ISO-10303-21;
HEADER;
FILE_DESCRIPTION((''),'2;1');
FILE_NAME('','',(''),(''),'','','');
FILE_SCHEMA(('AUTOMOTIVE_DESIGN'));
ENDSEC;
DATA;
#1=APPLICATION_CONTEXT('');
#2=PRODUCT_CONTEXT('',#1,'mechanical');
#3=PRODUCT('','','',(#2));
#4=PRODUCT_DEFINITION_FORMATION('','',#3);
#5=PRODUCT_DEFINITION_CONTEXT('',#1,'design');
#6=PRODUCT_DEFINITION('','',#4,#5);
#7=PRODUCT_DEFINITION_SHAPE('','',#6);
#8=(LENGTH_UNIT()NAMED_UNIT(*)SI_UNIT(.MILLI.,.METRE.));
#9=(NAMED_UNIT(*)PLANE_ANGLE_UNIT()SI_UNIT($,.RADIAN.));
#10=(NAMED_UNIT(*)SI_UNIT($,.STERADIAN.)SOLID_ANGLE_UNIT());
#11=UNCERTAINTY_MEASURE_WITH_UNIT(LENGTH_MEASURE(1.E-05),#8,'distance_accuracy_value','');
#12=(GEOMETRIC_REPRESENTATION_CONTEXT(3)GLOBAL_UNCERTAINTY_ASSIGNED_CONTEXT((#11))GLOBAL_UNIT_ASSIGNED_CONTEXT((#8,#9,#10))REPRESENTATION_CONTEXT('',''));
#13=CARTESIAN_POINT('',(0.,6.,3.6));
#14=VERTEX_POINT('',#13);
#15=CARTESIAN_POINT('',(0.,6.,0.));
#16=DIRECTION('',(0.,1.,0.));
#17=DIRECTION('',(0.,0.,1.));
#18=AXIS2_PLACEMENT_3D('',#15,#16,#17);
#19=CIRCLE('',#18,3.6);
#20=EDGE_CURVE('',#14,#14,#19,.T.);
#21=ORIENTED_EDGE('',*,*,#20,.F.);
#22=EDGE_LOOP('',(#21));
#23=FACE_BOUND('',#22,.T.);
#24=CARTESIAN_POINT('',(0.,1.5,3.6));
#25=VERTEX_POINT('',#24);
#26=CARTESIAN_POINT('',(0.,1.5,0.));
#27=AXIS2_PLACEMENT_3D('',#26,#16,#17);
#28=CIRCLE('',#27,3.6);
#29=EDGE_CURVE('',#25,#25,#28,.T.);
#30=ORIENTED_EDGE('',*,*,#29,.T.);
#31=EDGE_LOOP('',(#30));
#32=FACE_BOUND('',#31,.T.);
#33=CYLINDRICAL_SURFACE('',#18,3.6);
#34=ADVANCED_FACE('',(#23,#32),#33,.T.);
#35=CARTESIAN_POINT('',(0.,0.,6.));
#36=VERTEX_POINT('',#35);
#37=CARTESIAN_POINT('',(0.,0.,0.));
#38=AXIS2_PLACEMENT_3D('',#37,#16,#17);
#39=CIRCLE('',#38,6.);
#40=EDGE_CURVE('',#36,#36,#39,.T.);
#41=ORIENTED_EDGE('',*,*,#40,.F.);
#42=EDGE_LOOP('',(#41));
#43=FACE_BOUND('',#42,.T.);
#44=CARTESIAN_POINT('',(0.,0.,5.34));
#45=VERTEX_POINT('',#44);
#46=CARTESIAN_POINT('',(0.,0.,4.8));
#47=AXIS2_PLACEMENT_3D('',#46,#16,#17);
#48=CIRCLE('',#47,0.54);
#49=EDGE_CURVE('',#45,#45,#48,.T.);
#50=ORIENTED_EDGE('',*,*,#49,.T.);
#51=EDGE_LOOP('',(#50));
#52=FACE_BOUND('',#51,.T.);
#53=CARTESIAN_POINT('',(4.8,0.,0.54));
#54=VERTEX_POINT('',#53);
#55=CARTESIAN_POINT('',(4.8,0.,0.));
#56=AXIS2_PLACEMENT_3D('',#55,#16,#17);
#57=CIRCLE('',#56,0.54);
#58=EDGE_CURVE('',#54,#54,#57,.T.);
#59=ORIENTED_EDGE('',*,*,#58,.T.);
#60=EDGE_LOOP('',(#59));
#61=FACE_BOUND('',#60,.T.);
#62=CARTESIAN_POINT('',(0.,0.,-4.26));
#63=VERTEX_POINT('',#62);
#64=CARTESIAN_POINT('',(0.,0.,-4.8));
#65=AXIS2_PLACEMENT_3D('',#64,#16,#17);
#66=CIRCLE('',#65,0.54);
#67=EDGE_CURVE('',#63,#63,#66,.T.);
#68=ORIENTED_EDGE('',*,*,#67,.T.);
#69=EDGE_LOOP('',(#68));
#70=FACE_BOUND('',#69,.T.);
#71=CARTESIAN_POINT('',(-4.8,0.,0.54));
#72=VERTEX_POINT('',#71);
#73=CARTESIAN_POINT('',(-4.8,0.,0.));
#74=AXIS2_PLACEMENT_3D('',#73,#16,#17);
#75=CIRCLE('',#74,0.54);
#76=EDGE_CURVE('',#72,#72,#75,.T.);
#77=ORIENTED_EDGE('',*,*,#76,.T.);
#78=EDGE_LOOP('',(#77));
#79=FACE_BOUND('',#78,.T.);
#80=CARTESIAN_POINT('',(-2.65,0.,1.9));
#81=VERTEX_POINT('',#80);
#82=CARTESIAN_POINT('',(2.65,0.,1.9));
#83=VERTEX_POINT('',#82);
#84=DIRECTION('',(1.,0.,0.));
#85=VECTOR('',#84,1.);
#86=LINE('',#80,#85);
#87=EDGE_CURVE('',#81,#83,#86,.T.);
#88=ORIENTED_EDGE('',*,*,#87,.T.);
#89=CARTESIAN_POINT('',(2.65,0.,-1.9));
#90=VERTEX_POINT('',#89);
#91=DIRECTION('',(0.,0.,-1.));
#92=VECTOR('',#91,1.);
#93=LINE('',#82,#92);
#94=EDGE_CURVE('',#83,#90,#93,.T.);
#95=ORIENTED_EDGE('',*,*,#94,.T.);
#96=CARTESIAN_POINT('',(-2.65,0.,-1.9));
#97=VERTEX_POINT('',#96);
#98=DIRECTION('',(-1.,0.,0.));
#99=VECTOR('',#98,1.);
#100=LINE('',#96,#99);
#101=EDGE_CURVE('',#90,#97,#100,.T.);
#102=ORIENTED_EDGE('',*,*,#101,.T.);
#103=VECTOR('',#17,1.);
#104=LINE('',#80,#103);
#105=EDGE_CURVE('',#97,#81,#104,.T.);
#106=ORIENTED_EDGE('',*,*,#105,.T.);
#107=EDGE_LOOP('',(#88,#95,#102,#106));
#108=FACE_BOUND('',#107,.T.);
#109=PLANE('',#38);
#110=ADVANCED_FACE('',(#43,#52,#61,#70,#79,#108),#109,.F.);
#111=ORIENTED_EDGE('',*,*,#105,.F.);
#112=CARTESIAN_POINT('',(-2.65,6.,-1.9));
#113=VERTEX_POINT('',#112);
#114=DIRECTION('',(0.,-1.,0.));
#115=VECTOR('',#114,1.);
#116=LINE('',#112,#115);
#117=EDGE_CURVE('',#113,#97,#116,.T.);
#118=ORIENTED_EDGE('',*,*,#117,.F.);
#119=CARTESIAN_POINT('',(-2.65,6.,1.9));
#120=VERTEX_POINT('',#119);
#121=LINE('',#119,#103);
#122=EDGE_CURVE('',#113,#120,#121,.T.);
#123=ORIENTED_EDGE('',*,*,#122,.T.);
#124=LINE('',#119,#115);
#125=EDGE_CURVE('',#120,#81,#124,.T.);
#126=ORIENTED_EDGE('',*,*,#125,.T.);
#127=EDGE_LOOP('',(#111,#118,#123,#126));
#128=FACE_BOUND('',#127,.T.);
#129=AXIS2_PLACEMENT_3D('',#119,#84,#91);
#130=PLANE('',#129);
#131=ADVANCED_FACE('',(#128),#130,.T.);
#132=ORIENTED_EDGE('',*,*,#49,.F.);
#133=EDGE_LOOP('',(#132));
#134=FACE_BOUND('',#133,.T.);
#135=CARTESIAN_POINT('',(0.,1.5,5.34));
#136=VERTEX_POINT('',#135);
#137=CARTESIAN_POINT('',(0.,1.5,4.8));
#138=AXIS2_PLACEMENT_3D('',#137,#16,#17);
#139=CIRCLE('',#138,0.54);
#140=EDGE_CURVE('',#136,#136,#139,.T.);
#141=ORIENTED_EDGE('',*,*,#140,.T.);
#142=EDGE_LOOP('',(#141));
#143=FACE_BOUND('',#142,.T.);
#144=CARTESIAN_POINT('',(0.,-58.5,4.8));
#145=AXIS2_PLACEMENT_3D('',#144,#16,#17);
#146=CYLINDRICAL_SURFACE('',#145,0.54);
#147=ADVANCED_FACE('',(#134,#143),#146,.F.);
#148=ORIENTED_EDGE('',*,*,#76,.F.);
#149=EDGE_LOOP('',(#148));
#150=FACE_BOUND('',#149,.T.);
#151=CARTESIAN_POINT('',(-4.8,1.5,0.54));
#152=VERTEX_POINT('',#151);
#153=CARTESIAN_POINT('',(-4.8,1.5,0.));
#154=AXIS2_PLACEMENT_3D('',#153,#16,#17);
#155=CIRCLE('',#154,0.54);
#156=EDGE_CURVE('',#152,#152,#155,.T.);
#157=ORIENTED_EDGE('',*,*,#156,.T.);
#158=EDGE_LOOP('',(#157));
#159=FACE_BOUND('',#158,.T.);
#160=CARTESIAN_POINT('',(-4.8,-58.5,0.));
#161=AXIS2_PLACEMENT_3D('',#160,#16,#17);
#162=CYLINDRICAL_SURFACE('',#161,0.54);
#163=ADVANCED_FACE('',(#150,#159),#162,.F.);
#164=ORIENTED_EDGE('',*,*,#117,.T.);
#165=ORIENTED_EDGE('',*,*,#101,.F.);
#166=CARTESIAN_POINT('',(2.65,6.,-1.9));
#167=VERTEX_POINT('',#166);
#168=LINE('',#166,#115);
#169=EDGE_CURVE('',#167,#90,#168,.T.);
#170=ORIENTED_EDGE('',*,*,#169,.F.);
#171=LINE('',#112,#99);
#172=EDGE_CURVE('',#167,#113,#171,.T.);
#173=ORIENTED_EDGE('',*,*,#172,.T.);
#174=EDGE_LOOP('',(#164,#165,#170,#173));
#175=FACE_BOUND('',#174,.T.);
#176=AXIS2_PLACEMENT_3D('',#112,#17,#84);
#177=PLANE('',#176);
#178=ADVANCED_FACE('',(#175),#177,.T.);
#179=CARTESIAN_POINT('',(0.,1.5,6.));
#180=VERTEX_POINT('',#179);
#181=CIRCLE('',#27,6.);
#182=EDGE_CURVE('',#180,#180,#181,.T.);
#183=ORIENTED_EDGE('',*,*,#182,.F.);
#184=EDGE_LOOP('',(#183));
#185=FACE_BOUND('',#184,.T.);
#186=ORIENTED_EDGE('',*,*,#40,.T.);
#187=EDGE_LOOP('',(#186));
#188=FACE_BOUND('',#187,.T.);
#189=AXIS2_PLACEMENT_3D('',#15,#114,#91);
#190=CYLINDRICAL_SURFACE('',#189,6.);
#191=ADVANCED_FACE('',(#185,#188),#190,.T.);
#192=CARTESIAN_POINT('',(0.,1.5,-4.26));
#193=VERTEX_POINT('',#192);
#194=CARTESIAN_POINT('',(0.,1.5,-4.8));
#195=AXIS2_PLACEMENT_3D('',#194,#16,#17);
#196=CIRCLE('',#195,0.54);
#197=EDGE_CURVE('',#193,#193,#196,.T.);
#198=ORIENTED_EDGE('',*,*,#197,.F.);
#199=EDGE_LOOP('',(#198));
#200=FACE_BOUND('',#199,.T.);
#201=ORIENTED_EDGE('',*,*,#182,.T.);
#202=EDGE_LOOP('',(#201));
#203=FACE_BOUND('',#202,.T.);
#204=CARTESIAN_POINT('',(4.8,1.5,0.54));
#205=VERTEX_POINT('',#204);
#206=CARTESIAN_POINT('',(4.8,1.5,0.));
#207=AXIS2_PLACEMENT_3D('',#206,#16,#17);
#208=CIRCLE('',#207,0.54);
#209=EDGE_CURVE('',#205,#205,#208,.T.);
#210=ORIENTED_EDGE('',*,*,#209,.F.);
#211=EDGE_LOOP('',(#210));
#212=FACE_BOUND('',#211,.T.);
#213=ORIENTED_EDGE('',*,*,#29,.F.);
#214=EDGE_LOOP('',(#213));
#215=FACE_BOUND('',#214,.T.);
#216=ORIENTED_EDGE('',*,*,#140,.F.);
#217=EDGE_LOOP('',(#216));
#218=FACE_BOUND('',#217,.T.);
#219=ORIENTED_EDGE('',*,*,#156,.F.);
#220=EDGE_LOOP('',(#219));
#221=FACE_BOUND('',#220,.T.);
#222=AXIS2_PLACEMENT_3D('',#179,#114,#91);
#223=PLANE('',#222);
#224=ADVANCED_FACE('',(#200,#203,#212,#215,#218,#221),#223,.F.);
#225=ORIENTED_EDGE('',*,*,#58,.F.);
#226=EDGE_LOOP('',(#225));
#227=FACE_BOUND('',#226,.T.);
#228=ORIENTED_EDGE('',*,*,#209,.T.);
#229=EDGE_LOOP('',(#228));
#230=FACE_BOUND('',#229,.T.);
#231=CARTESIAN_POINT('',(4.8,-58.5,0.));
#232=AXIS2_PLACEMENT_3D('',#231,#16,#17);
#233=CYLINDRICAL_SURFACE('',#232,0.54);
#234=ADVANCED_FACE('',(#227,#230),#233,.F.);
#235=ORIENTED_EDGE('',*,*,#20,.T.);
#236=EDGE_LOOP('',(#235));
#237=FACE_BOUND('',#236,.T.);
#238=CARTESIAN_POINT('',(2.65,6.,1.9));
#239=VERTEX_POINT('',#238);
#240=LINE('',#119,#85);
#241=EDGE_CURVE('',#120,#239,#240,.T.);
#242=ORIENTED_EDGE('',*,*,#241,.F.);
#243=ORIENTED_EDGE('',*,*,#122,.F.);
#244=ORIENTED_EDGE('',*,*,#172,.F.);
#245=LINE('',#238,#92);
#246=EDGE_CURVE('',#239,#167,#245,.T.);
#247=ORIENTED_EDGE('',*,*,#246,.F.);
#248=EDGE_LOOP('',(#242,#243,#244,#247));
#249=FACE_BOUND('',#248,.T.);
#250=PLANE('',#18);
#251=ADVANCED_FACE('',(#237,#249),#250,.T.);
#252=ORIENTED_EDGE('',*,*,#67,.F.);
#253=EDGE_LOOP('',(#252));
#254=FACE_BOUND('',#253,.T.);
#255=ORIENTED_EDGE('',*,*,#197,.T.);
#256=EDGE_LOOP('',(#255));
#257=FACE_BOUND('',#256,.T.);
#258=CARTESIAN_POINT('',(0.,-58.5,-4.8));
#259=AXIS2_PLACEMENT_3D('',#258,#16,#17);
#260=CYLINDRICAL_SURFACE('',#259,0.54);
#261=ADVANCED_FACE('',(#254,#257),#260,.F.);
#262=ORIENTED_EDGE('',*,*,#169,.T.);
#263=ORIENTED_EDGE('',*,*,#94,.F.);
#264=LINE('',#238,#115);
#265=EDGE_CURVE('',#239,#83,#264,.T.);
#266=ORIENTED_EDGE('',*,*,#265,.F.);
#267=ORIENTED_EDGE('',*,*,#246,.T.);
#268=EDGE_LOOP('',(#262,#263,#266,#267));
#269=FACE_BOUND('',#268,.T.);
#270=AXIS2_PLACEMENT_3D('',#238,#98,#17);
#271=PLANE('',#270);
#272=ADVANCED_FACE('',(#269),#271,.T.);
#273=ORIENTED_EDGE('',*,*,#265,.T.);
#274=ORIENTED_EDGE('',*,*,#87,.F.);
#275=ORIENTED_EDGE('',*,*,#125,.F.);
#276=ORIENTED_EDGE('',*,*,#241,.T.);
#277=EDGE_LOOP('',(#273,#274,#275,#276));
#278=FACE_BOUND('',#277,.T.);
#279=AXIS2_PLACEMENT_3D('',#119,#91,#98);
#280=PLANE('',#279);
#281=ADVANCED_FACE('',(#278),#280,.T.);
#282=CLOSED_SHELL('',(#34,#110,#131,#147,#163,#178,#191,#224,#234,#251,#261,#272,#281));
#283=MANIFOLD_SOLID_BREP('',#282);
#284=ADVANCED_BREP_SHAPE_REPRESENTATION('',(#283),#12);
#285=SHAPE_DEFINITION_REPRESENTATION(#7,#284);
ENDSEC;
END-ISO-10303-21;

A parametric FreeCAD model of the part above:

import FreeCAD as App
import Part
import Sketcher
Q = App.Units.Quantity


def add_polygon(sketch, points):
    """Adds a closed chain of lines whose ends are joined by coincident constraints."""
    first, n = sketch.GeometryCount, len(points)
    for a, b in zip(points, points[1:] + points[:1]):
        sketch.addGeometry(Part.LineSegment(App.Vector(*a, 0), App.Vector(*b, 0)), False)
    for i in range(n):
        sketch.addConstraint(Sketcher.Constraint("Coincident", first + i, 2, first + (i + 1) % n, 1))

doc = App.newDocument("Part")
body = doc.addObject("PartDesign::Body", "Body")

sketch1 = body.newObject("Sketcher::SketchObject", "Sketch")
sketch1.AttachmentSupport = (doc.getObject("XZ_Plane"), [""])
sketch1.MapMode = "FlatFace"
sketch1.addGeometry(Part.Circle(App.Vector(0, 0, 0), App.Vector(0, 0, 1), 6), False)
add_polygon(sketch1, [(2.6, 1.9), (-2.6, 1.9), (-2.6, -1.9), (2.6, -1.9)])
sketch1.addConstraint(Sketcher.Constraint("Horizontal", 1))
sketch1.addConstraint(Sketcher.Constraint("Vertical", 2))
sketch1.addConstraint(Sketcher.Constraint("Horizontal", 3))
sketch1.addConstraint(Sketcher.Constraint("Vertical", 4))
sketch1.addConstraint(Sketcher.Constraint("Coincident", 0, 3, -1, 1))
sketch1.addConstraint(Sketcher.Constraint("Symmetric", 1, 2, 3, 2, -1, 1))
sketch1.addConstraint(Sketcher.Constraint("Diameter", 0, Q("12 mm")))
sketch1.addConstraint(Sketcher.Constraint("DistanceX", 1, 2, 1, 1, Q("5.3 mm")))
sketch1.addConstraint(Sketcher.Constraint("DistanceY", 2, 2, 2, 1, Q("3.8 mm")))
pad1 = body.newObject("PartDesign::Pad", "Pad")
pad1.Profile = sketch1
pad1.Length = 6
pad1.Reversed = True

sketch2 = body.newObject("Sketcher::SketchObject", "Sketch001")
sketch2.AttachmentSupport = (doc.getObject("YZ_Plane"), [""])
sketch2.MapMode = "FlatFace"
add_polygon(sketch2, [(6, 6), (1.5, 6), (1.5, 3.6), (6, 3.6)])
sketch2.addConstraint(Sketcher.Constraint("Horizontal", 0))
sketch2.addConstraint(Sketcher.Constraint("Vertical", 1))
sketch2.addConstraint(Sketcher.Constraint("Horizontal", 2))
sketch2.addConstraint(Sketcher.Constraint("Vertical", 3))
sketch2.addConstraint(Sketcher.Constraint("DistanceX", 0, 2, 0, 1, Q("4.5 mm")))
sketch2.addConstraint(Sketcher.Constraint("DistanceY", 1, 2, 1, 1, Q("2.4 mm")))
sketch2.addConstraint(Sketcher.Constraint("DistanceY", -1, 1, 0, 2, Q("6 mm")))
sketch2.addConstraint(Sketcher.Constraint("DistanceX", -1, 1, 2, 2, Q("6 mm")))
groove = body.newObject("PartDesign::Groove", "Groove")
groove.Profile = sketch2
groove.ReferenceAxis = (sketch2, ["H_Axis"])
groove.Angle = 360

sketch3 = body.newObject("Sketcher::SketchObject", "Sketch002")
sketch3.AttachmentSupport = (doc.getObject("XZ_Plane"), [""])
sketch3.MapMode = "FlatFace"
sketch3.AttachmentOffset = App.Placement(App.Vector(0, 0, -1.5), App.Rotation())
sketch3.addGeometry(Part.Circle(App.Vector(-4.8, 0, 0), App.Vector(0, 0, 1), 0.5), False)
sketch3.addGeometry(Part.Circle(App.Vector(0, 4.8, 0), App.Vector(0, 0, 1), 0.5), False)
sketch3.addGeometry(Part.Circle(App.Vector(4.8, 0, 0), App.Vector(0, 0, 1), 0.5), False)
sketch3.addGeometry(Part.Circle(App.Vector(0, -4.8, 0), App.Vector(0, 0, 1), 0.5), False)
sketch3.addConstraint(Sketcher.Constraint("Equal", 0, 1))
sketch3.addConstraint(Sketcher.Constraint("Equal", 1, 2))
sketch3.addConstraint(Sketcher.Constraint("Equal", 2, 3))
sketch3.addConstraint(Sketcher.Constraint("Symmetric", 0, 3, 2, 3, -1, 1))
sketch3.addConstraint(Sketcher.Constraint("Symmetric", 1, 3, 3, 3, -1, 1))
sketch3.addConstraint(Sketcher.Constraint("PointOnObject", 0, 3, -1))
sketch3.addConstraint(Sketcher.Constraint("PointOnObject", 1, 3, -2))
sketch3.addConstraint(Sketcher.Constraint("Diameter", 0, Q("1.08 mm")))
sketch3.addConstraint(Sketcher.Constraint("DistanceX", 0, 3, -1, 1, Q("4.8 mm")))
sketch3.addConstraint(Sketcher.Constraint("DistanceY", -1, 1, 1, 3, Q("4.8 mm")))
pocket1 = body.newObject("PartDesign::Pocket", "Pocket")
pocket1.Profile = sketch3
pocket1.Length = 60
pocket1.Reversed = True

doc.recompute()
